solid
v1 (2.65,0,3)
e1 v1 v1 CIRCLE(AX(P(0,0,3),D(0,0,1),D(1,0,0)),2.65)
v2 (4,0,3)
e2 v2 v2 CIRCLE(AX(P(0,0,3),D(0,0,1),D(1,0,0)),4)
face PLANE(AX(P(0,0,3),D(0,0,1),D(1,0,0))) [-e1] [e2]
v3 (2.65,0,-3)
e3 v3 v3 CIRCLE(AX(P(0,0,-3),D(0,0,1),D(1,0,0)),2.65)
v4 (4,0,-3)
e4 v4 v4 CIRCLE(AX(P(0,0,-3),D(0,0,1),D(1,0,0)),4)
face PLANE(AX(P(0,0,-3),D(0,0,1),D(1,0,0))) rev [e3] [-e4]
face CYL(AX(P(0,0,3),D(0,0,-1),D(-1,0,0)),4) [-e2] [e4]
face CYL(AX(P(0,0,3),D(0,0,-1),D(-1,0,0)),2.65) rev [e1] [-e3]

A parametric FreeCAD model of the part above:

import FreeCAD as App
import Part
import Sketcher

V = App.Vector

doc = App.newDocument("Part")
body = doc.addObject("PartDesign::Body", "Body")

# Sketch on XY plane
sketch1 = doc.addObject("Sketcher::SketchObject", "Sketch")
body.addObject(sketch1)
sketch1.AttachmentSupport = (doc.XY_Plane, [""])
sketch1.MapMode = "FlatFace"
sketch1.addGeometry(Part.Circle(V(0, 0, 0), V(0, 0, 1), 4), False)
sketch1.addGeometry(Part.Circle(V(0, 0, 0), V(0, 0, 1), 2.6), False)
sketch1.addConstraint(Sketcher.Constraint("Coincident", 0, 3, -1, 1))
sketch1.addConstraint(Sketcher.Constraint("Coincident", 1, 3, -1, 1))
sketch1.addConstraint(Sketcher.Constraint("Diameter", 0, 8.0))
sketch1.addConstraint(Sketcher.Constraint("Diameter", 1, 5.3))
pad1 = doc.addObject("PartDesign::Pad", "Pad")
body.addObject(pad1)
pad1.Profile = sketch1
pad1.Type = "TwoLengths"
pad1.Length = 3
pad1.Length2 = 3

doc.recompute()
